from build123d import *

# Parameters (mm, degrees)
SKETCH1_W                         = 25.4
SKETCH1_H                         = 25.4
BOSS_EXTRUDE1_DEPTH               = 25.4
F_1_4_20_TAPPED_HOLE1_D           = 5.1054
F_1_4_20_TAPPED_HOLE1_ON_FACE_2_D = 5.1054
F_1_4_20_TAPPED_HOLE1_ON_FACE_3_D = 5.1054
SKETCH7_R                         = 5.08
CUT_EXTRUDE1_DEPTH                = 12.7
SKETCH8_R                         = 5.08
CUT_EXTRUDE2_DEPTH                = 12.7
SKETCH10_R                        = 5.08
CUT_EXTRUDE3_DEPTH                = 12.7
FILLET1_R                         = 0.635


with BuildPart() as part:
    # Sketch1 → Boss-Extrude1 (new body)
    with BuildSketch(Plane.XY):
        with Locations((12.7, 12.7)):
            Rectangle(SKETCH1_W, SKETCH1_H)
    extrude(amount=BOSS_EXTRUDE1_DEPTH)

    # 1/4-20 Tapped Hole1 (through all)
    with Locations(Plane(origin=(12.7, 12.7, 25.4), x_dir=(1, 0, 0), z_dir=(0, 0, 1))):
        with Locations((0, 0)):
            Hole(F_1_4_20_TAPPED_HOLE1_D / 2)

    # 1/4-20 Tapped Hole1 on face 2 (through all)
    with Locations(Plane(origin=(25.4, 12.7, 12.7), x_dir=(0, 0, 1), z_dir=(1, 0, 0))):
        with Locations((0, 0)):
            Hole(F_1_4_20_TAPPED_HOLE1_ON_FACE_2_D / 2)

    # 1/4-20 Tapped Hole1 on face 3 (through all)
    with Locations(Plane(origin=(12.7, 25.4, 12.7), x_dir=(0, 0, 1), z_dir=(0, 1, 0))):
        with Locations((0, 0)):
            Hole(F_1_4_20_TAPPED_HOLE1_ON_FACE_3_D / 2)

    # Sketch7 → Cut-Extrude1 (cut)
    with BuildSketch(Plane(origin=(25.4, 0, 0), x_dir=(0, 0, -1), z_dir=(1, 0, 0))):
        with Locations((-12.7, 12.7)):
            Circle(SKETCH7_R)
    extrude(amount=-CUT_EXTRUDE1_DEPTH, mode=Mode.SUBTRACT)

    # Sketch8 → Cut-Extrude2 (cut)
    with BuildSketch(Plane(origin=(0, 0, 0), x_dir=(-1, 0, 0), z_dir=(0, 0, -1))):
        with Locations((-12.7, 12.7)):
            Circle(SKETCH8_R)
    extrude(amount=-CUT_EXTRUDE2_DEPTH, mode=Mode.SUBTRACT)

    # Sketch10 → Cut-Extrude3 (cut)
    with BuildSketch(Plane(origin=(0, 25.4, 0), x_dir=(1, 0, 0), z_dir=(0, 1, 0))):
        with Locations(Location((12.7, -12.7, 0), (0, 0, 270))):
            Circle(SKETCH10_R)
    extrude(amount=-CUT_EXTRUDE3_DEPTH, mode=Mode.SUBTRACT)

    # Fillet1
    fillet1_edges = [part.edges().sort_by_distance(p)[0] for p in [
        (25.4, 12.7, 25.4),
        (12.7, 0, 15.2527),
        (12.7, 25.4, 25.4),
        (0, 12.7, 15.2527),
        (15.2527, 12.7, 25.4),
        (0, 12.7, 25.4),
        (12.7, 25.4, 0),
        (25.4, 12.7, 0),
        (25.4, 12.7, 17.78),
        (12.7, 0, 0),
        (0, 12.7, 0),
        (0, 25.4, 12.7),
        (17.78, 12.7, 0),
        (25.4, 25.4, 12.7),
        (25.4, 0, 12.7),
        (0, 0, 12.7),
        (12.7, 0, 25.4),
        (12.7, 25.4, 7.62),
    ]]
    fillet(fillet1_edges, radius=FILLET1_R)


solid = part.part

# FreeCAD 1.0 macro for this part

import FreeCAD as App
import Part
import Sketcher

V = App.Vector
Q = App.Units.Quantity


def edges_at(feature, points):
    """Names of the edges that pass closest to the given points."""
    edges = feature.Shape.Edges
    near = lambda p: min(range(len(edges)), key=lambda i: edges[i].distToShape(Part.Vertex(*p))[0])
    return sorted({f"Edge{near(p) + 1}" for p in points})


def add_polygon(sketch, points):
    """Adds a closed chain of lines whose ends are joined by coincident constraints."""
    first, n = sketch.GeometryCount, len(points)
    for a, b in zip(points, points[1:] + points[:1]):
        sketch.addGeometry(Part.LineSegment(App.Vector(*a, 0), App.Vector(*b, 0)), False)
    for i in range(n):
        sketch.addConstraint(Sketcher.Constraint("Coincident", first + i, 2, first + (i + 1) % n, 1))

doc = App.newDocument("Part")
body = doc.addObject("PartDesign::Body", "Body")

sketch1 = doc.addObject("Sketcher::SketchObject", "Sketch")
body.addObject(sketch1)
sketch1.AttachmentSupport = (doc.XY_Plane, [""])
sketch1.MapMode = "FlatFace"
add_polygon(sketch1, [(0, 25), (0, 0), (25, 0), (25, 25)])
sketch1.addConstraint([
    Sketcher.Constraint("Vertical", 0),
    Sketcher.Constraint("Horizontal", 1),
    Sketcher.Constraint("Vertical", 2),
    Sketcher.Constraint("Horizontal", 3),
    Sketcher.Constraint("Coincident", 0, 2, -1, 1),
    Sketcher.Constraint("Equal", 3, 0),
    Sketcher.Constraint("DistanceX", 1, 1, 1, 2, Q("1 in")),
])
pad1 = doc.addObject("PartDesign::Pad", "Pad")
body.addObject(pad1)
pad1.Profile = sketch1
pad1.Length = Q("1 in")

sketch2 = doc.addObject("Sketcher::SketchObject", "Sketch001")
body.addObject(sketch2)
sketch2.AttachmentSupport = (doc.XY_Plane, [""])
sketch2.MapMode = "FlatFace"
sketch2.AttachmentOffset = App.Placement(V(0, 0, 1 * 25.4), App.Rotation())
sketch2.addGeometry(Part.Circle(V(12.7, 12.7, 0), V(0, 0, 1), 2.6), False)
sketch2.addConstraint([
    Sketcher.Constraint("Diameter", 0, Q("0.201 in")),
    Sketcher.Constraint("DistanceX", -1, 1, 0, 3, Q("0.5 in")),
    Sketcher.Constraint("DistanceY", -1, 1, 0, 3, Q("0.5 in")),
])
doc.recompute()
hole = doc.addObject("PartDesign::Hole", "Hole")
body.addObject(hole)
hole.Profile = sketch2
hole.ThreadType = "None"
hole.Diameter = Q("0.201 in")
hole.DepthType = "ThroughAll"

sketch3 = doc.addObject("Sketcher::SketchObject", "Sketch002")
body.addObject(sketch3)
sketch3.AttachmentSupport = (doc.YZ_Plane, [""])
sketch3.MapMode = "FlatFace"
sketch3.AttachmentOffset = App.Placement(V(0, 0, 1 * 25.4), App.Rotation())
sketch3.addGeometry(Part.Circle(V(12.7, 12.7, 0), V(0, 0, 1), 2.6), False)
sketch3.addConstraint([
    Sketcher.Constraint("Diameter", 0, Q("0.201 in")),
    Sketcher.Constraint("DistanceX", -1, 1, 0, 3, Q("0.5 in")),
    Sketcher.Constraint("DistanceY", -1, 1, 0, 3, Q("0.5 in")),
])
doc.recompute()
hole2 = doc.addObject("PartDesign::Hole", "Hole001")
body.addObject(hole2)
hole2.Profile = sketch3
hole2.ThreadType = "None"
hole2.Diameter = Q("0.201 in")
hole2.DepthType = "ThroughAll"

sketch4 = doc.addObject("Sketcher::SketchObject", "Sketch003")
body.addObject(sketch4)
sketch4.AttachmentSupport = (doc.XZ_Plane, [""])
sketch4.MapMode = "FlatFace"
sketch4.AttachmentOffset = App.Placement(V(0, 0, -1 * 25.4), App.Rotation())
sketch4.addGeometry(Part.Circle(V(12.7, 12.7, 0), V(0, 0, 1), 2.6), False)
sketch4.addConstraint([
    Sketcher.Constraint("Diameter", 0, Q("0.201 in")),
    Sketcher.Constraint("DistanceX", -1, 1, 0, 3, Q("0.5 in")),
    Sketcher.Constraint("DistanceY", -1, 1, 0, 3, Q("0.5 in")),
])
doc.recompute()
hole3 = doc.addObject("PartDesign::Hole", "Hole002")
body.addObject(hole3)
hole3.Profile = sketch4
hole3.ThreadType = "None"
hole3.Diameter = Q("0.201 in")
hole3.DepthType = "ThroughAll"
hole3.Reversed = True

sketch5 = doc.addObject("Sketcher::SketchObject", "Sketch004")
body.addObject(sketch5)
sketch5.AttachmentSupport = (doc.YZ_Plane, [""])
sketch5.MapMode = "FlatFace"
sketch5.AttachmentOffset = App.Placement(V(0, 0, 1 * 25.4), App.Rotation())
sketch5.addGeometry(Part.Circle(V(13, 13, 0), V(0, 0, 1), 5), False)
sketch5.addConstraint([
    Sketcher.Constraint("Diameter", 0, Q("0.4 in")),
    Sketcher.Constraint("DistanceX", -1, 1, 0, 3, Q("0.5 in")),
    Sketcher.Constraint("DistanceY", -1, 1, 0, 3, Q("0.5 in")),
])
pocket1 = doc.addObject("PartDesign::Pocket", "Pocket")
body.addObject(pocket1)
pocket1.Profile = sketch5
pocket1.Length = Q("0.5 in")

sketch6 = doc.addObject("Sketcher::SketchObject", "Sketch005")
body.addObject(sketch6)
sketch6.AttachmentSupport = (doc.XY_Plane, [""])
sketch6.MapMode = "FlatFace"
sketch6.addGeometry(Part.Circle(V(13, 13, 0), V(0, 0, 1), 5), False)
sketch6.addConstraint([
    Sketcher.Constraint("Diameter", 0, Q("0.4 in")),
    Sketcher.Constraint("DistanceX", -1, 1, 0, 3, Q("0.5 in")),
    Sketcher.Constraint("DistanceY", -1, 1, 0, 3, Q("0.5 in")),
])
pocket2 = doc.addObject("PartDesign::Pocket", "Pocket001")
body.addObject(pocket2)
pocket2.Profile = sketch6
pocket2.Length = Q("0.5 in")
pocket2.Reversed = True

sketch7 = doc.addObject("Sketcher::SketchObject", "Sketch006")
body.addObject(sketch7)
sketch7.AttachmentSupport = (doc.XZ_Plane, [""])
sketch7.MapMode = "FlatFace"
sketch7.AttachmentOffset = App.Placement(V(0, 0, -1 * 25.4), App.Rotation())
sketch7.addGeometry(Part.Circle(V(13, 13, 0), V(0, 0, 1), 5), False)
sketch7.addConstraint([
    Sketcher.Constraint("Diameter", 0, Q("0.4 in")),
    Sketcher.Constraint("DistanceX", -1, 1, 0, 3, Q("0.5 in")),
    Sketcher.Constraint("DistanceY", -1, 1, 0, 3, Q("0.5 in")),
])
pocket3 = doc.addObject("PartDesign::Pocket", "Pocket002")
body.addObject(pocket3)
pocket3.Profile = sketch7
pocket3.Length = Q("0.5 in")
pocket3.Reversed = True
doc.recompute()

fillet = doc.addObject("PartDesign::Fillet", "Fillet")
body.addObject(fillet)
fillet.Base = (pocket3, edges_at(pocket3, [
    (25.4, 12.7, 25.4),
    (12.7, 0, 15.253),
    (12.7, 25.4, 25.4),
    (0, 12.7, 15.253),
    (15.253, 12.7, 25.4),
    (0, 12.7, 25.4),
    (12.7, 25.4, 0),
    (25.4, 12.7, 0),
    (25.4, 12.7, 17.78),
    (12.7, 0, 0),
    (0, 12.7, 0),
    (0, 25.4, 12.7),
    (17.78, 12.7, 0),
    (25.4, 25.4, 12.7),
    (25.4, 0, 12.7),
    (0, 0, 12.7),
    (12.7, 0, 25.4),
    (12.7, 25.4, 7.62),
]))
fillet.Radius = Q("0.025 in")

doc.recompute()
